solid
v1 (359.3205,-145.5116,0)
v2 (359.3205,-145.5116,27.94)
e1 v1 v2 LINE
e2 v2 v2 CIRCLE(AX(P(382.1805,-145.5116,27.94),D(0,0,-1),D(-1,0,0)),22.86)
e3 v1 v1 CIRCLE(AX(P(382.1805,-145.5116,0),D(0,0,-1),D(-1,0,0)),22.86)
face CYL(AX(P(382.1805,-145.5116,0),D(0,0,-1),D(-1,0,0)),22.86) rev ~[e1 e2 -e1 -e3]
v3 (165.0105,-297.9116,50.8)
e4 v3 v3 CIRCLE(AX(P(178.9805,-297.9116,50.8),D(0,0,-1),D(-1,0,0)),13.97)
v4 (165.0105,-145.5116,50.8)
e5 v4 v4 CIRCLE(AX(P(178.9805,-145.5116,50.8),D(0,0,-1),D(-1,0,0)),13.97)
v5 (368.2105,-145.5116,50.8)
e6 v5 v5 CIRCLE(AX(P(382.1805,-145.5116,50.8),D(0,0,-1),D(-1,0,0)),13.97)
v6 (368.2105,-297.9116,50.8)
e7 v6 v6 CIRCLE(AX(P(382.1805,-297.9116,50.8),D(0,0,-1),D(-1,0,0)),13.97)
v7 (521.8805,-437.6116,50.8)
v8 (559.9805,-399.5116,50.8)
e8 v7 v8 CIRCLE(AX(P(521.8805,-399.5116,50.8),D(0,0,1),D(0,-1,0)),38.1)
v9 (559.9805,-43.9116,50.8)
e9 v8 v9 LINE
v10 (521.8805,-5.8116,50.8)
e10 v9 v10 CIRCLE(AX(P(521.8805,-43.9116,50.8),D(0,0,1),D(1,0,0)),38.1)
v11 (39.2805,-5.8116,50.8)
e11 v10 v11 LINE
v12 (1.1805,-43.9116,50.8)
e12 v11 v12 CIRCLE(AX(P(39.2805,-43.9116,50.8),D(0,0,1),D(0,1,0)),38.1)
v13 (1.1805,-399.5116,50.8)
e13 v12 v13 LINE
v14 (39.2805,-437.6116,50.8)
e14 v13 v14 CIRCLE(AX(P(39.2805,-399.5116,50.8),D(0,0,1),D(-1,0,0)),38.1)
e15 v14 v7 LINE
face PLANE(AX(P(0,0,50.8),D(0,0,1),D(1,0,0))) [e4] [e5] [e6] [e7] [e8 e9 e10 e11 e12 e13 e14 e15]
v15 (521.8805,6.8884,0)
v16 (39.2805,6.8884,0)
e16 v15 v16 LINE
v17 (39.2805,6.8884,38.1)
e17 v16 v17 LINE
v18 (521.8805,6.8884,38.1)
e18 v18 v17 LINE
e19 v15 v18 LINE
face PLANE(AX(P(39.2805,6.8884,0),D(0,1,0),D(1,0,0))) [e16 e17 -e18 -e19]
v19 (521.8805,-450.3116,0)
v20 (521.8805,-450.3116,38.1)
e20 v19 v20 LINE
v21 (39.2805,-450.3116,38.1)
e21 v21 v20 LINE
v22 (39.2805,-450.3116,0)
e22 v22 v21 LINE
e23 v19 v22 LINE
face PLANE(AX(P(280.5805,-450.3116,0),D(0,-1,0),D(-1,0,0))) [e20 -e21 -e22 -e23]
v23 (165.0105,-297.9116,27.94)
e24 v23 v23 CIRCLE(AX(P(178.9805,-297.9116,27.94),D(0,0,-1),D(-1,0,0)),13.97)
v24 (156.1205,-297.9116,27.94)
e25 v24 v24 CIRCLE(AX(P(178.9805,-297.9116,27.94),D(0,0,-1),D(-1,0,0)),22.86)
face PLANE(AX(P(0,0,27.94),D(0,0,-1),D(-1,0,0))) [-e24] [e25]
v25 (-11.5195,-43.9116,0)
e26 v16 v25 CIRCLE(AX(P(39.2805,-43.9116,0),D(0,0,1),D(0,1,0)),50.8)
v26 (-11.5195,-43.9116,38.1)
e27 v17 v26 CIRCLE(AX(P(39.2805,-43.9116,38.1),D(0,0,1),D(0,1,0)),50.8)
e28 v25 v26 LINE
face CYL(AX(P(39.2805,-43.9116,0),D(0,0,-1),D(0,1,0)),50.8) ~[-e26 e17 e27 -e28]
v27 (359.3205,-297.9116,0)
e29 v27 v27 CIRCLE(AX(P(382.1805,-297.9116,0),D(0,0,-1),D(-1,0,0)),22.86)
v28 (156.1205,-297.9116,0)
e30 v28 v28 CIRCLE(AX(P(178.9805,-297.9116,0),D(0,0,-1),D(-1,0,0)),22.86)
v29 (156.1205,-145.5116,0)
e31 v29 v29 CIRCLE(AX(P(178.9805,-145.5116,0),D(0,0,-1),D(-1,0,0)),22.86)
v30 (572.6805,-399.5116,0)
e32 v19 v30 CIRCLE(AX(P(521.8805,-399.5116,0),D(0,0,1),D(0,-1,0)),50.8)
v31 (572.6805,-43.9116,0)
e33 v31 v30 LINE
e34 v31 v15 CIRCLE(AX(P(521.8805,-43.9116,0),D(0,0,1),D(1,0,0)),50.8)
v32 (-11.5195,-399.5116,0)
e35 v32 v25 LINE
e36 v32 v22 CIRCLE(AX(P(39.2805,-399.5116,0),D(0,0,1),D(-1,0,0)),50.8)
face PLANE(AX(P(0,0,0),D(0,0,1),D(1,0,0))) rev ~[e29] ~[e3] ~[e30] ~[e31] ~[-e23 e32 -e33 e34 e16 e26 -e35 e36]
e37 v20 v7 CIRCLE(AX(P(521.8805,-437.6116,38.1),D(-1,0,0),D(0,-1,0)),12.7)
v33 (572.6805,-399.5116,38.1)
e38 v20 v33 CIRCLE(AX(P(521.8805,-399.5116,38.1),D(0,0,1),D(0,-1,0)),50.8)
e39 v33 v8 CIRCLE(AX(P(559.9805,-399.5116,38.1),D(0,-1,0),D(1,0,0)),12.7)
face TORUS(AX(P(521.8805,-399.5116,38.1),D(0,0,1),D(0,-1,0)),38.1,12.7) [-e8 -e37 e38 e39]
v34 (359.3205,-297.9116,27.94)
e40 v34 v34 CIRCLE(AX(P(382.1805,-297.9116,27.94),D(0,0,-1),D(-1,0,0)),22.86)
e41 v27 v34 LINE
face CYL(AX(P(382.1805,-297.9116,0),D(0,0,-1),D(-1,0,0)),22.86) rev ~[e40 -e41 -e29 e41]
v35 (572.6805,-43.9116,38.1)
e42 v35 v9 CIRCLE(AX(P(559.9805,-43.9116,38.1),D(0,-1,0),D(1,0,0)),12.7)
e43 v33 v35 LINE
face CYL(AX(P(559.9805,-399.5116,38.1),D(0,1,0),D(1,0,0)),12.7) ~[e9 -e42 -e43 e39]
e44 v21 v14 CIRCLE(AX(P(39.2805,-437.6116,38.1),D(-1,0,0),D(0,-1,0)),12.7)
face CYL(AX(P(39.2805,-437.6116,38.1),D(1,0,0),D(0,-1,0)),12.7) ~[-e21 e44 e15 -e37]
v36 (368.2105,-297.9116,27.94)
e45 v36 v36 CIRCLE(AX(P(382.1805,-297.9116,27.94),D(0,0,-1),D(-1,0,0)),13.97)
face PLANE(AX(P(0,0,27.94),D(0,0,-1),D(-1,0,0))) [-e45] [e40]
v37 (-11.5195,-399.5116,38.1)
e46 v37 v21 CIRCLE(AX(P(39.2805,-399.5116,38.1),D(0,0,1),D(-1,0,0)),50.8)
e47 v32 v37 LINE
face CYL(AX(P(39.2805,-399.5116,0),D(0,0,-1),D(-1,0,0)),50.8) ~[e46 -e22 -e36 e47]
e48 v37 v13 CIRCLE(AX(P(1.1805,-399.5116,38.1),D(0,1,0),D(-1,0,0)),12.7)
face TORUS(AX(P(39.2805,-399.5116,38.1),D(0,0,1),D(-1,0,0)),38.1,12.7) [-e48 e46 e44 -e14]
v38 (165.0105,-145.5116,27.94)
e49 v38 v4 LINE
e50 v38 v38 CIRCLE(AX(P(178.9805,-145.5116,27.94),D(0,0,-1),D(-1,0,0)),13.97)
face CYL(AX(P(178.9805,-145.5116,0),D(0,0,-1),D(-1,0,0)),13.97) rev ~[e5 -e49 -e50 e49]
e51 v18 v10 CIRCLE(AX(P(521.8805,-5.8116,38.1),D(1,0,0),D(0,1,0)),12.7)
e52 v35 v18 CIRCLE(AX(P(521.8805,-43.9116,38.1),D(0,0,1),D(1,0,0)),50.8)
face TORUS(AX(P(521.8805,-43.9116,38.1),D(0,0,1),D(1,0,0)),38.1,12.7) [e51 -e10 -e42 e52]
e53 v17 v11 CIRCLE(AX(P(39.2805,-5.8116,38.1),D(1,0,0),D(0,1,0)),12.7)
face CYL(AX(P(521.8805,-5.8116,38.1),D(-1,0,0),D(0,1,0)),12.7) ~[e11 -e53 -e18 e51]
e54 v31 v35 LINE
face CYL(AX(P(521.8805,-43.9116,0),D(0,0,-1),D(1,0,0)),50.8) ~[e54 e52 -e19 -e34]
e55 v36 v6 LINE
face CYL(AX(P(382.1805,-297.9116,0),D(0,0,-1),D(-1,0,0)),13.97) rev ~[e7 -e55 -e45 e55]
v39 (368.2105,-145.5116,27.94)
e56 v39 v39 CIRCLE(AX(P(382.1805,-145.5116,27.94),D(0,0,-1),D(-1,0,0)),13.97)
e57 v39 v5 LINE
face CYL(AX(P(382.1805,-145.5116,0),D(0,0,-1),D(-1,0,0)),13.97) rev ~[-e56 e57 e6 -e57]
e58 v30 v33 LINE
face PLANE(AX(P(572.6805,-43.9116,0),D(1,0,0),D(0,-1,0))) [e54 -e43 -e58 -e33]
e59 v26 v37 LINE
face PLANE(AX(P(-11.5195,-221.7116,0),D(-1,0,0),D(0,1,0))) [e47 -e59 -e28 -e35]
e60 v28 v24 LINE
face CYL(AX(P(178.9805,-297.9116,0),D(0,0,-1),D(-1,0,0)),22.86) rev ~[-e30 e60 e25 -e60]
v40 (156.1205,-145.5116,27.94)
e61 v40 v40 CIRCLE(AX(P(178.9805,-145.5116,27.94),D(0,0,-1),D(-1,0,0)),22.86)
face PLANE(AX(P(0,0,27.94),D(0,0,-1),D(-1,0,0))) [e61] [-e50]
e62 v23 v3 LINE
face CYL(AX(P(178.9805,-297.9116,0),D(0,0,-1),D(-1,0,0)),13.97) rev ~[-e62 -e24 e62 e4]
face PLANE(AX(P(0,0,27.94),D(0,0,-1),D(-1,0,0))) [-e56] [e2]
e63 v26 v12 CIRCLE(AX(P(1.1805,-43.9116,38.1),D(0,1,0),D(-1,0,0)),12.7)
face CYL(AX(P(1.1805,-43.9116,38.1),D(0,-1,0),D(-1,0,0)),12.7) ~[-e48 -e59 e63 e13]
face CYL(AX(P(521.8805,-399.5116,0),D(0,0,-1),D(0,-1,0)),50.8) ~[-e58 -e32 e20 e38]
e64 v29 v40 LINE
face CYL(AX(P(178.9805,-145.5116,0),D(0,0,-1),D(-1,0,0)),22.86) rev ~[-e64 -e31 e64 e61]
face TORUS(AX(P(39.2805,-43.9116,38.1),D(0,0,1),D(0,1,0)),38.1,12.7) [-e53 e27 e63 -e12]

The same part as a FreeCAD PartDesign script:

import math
import FreeCAD as App
import Part
import Sketcher
from FreeCAD import Vector
Q = App.Units.Quantity


def edges_at(feature, points):
    """Names of the edges that pass closest to the given points."""
    edges = feature.Shape.Edges
    near = lambda p: min(range(len(edges)), key=lambda i: edges[i].distToShape(Part.Vertex(*p))[0])
    return sorted({f"Edge{near(p) + 1}" for p in points})

doc = App.newDocument("Part")
body = doc.addObject("PartDesign::Body", "Body")

sketch1 = body.newObject("Sketcher::SketchObject", "Sketch")
sketch1.AttachmentSupport = (doc.getObject("XY_Plane"), [""])
sketch1.MapMode = "FlatFace"
sketch1.addGeometry([
    Part.ArcOfCircle(Part.Circle(Vector(39.2805, -43.9116, 0), Vector(0, 0, 1), 50.8), math.radians(90), math.radians(180)),
    Part.LineSegment(Vector(-11.5195, -43.9116, 0), Vector(-11.5195, -399.5116, 0)),
    Part.ArcOfCircle(Part.Circle(Vector(39.2805, -399.5116, 0), Vector(0, 0, 1), 50.8), math.radians(180), math.radians(270)),
    Part.LineSegment(Vector(39.2805, -450.3116, 0), Vector(521.8805, -450.3116, 0)),
    Part.ArcOfCircle(Part.Circle(Vector(521.8805, -399.5116, 0), Vector(0, 0, 1), 50.8), math.radians(-90), math.radians(0)),
    Part.LineSegment(Vector(572.6805, -399.5116, 0), Vector(572.6805, -43.9116, 0)),
    Part.ArcOfCircle(Part.Circle(Vector(521.8805, -43.9116, 0), Vector(0, 0, 1), 50.8), math.radians(0), math.radians(90)),
    Part.LineSegment(Vector(521.8805, 6.8884, 0), Vector(39.2805, 6.8884, 0)),
], False)
sketch1.addConstraint([
    Sketcher.Constraint("Tangent", 0, 2, 1, 1),
    Sketcher.Constraint("Tangent", 1, 2, 2, 1),
    Sketcher.Constraint("Tangent", 2, 2, 3, 1),
    Sketcher.Constraint("Tangent", 3, 2, 4, 1),
    Sketcher.Constraint("Tangent", 4, 2, 5, 1),
    Sketcher.Constraint("Tangent", 5, 2, 6, 1),
    Sketcher.Constraint("Tangent", 6, 2, 7, 1),
    Sketcher.Constraint("Tangent", 7, 2, 0, 1),
    Sketcher.Constraint("Vertical", 1),
    Sketcher.Constraint("Horizontal", 3),
    Sketcher.Constraint("Vertical", 5),
    Sketcher.Constraint("Horizontal", 7),
    Sketcher.Constraint("Equal", 0, 2),
    Sketcher.Constraint("Equal", 2, 4),
    Sketcher.Constraint("Equal", 4, 6),
    Sketcher.Constraint("Radius", 0, Q("2 in")),
    Sketcher.Constraint("DistanceY", 3, 2, 6, 2, Q("18 in")),
    Sketcher.Constraint("DistanceX", 3, 1, 3, 2, Q("19 in")),
    Sketcher.Constraint("DistanceY", 0, 3, -1, 1, Q("1.7288 in")),
    Sketcher.Constraint("DistanceX", -1, 1, 0, 3, Q("39.2805 mm")),
])
pad1 = body.newObject("PartDesign::Pad", "Pad")
pad1.Profile = sketch1
pad1.Length = Q("2 in")
doc.recompute()

fillet = body.newObject("PartDesign::Fillet", "Fillet")
fillet.Base = (pad1, edges_at(pad1, [
    (3.36, -7.99, 50.8),
    (-11.52, -221.712, 50.8),
    (3.36, -435.433, 50.8),
    (280.58, -450.312, 50.8),
    (557.802, -435.433, 50.8),
    (572.681, -221.712, 50.8),
    (557.802, -7.99, 50.8),
    (280.58, 6.888, 50.8),
]))
fillet.Radius = Q("0.5 in")

sketch2 = body.newObject("Sketcher::SketchObject", "Sketch001")
sketch2.AttachmentSupport = (doc.getObject("XY_Plane"), [""])
sketch2.MapMode = "FlatFace"
sketch2.addGeometry([
    Part.Circle(Vector(178.9805, -297.9116, 0), Vector(0, 0, 1), 13.97),
    Part.Circle(Vector(382.1805, -297.9116, 0), Vector(0, 0, 1), 13.97),
    Part.Circle(Vector(178.9805, -145.5116, 0), Vector(0, 0, 1), 13.97),
    Part.Circle(Vector(382.1805, -145.5116, 0), Vector(0, 0, 1), 13.97),
], False)
sketch2.addConstraint([
    Sketcher.Constraint("Equal", 0, 1),
    Sketcher.Constraint("Equal", 1, 2),
    Sketcher.Constraint("Equal", 2, 3),
    Sketcher.Constraint("Horizontal", 0, 3, 1, 3),
    Sketcher.Constraint("Horizontal", 2, 3, 3, 3),
    Sketcher.Constraint("Vertical", 0, 3, 2, 3),
    Sketcher.Constraint("Vertical", 1, 3, 3, 3),
    Sketcher.Constraint("Diameter", 0, Q("1.1 in")),
    Sketcher.Constraint("DistanceX", 0, 3, 1, 3, Q("8 in")),
    Sketcher.Constraint("DistanceY", 0, 3, 2, 3, Q("6 in")),
    Sketcher.Constraint("DistanceY", 0, 3, -1, 1, Q("11.7288 in")),
    Sketcher.Constraint("DistanceX", -1, 1, 0, 3, Q("178.9805 mm")),
])
pocket1 = body.newObject("PartDesign::Pocket", "Pocket")
pocket1.Profile = sketch2
pocket1.Type = "ThroughAll"
pocket1.Reversed = True

sketch3 = body.newObject("Sketcher::SketchObject", "Sketch002")
sketch3.AttachmentSupport = (doc.getObject("XY_Plane"), [""])
sketch3.MapMode = "FlatFace"
sketch3.addGeometry([
    Part.Circle(Vector(178.9805, -297.9116, 0), Vector(0, 0, 1), 22.86),
    Part.Circle(Vector(178.9805, -297.9116, 0), Vector(0, 0, 1), 13.97),
    Part.Circle(Vector(382.1805, -297.9116, 0), Vector(0, 0, 1), 22.86),
    Part.Circle(Vector(382.1805, -297.9116, 0), Vector(0, 0, 1), 13.97),
    Part.Circle(Vector(178.9805, -145.5116, 0), Vector(0, 0, 1), 22.86),
    Part.Circle(Vector(382.1805, -145.5116, 0), Vector(0, 0, 1), 22.86),
    Part.Circle(Vector(382.1805, -145.5116, 0), Vector(0, 0, 1), 13.97),
], False)
sketch3.addConstraint([
    Sketcher.Constraint("Coincident", 1, 3, 0, 3),
    Sketcher.Constraint("Coincident", 3, 3, 2, 3),
    Sketcher.Constraint("Coincident", 6, 3, 5, 3),
    Sketcher.Constraint("Equal", 0, 2),
    Sketcher.Constraint("Equal", 1, 3),
    Sketcher.Constraint("Equal", 2, 4),
    Sketcher.Constraint("Equal", 4, 5),
    Sketcher.Constraint("Equal", 3, 6),
    Sketcher.Constraint("Horizontal", 1, 3, 2, 3),
    Sketcher.Constraint("Horizontal", 4, 3, 5, 3),
    Sketcher.Constraint("Vertical", 1, 3, 4, 3),
    Sketcher.Constraint("Vertical", 3, 3, 5, 3),
    Sketcher.Constraint("Diameter", 0, Q("1.8 in")),
    Sketcher.Constraint("Diameter", 1, Q("1.1 in")),
    Sketcher.Constraint("DistanceX", 0, 3, 2, 3, Q("8 in")),
    Sketcher.Constraint("DistanceY", 0, 3, 4, 3, Q("6 in")),
    Sketcher.Constraint("DistanceY", 0, 3, -1, 1, Q("11.7288 in")),
    Sketcher.Constraint("DistanceX", -1, 1, 0, 3, Q("178.9805 mm")),
])
pocket2 = body.newObject("PartDesign::Pocket", "Pocket001")
pocket2.Profile = sketch3
pocket2.Length = Q("1.1 in")
pocket2.Reversed = True

doc.recompute()
